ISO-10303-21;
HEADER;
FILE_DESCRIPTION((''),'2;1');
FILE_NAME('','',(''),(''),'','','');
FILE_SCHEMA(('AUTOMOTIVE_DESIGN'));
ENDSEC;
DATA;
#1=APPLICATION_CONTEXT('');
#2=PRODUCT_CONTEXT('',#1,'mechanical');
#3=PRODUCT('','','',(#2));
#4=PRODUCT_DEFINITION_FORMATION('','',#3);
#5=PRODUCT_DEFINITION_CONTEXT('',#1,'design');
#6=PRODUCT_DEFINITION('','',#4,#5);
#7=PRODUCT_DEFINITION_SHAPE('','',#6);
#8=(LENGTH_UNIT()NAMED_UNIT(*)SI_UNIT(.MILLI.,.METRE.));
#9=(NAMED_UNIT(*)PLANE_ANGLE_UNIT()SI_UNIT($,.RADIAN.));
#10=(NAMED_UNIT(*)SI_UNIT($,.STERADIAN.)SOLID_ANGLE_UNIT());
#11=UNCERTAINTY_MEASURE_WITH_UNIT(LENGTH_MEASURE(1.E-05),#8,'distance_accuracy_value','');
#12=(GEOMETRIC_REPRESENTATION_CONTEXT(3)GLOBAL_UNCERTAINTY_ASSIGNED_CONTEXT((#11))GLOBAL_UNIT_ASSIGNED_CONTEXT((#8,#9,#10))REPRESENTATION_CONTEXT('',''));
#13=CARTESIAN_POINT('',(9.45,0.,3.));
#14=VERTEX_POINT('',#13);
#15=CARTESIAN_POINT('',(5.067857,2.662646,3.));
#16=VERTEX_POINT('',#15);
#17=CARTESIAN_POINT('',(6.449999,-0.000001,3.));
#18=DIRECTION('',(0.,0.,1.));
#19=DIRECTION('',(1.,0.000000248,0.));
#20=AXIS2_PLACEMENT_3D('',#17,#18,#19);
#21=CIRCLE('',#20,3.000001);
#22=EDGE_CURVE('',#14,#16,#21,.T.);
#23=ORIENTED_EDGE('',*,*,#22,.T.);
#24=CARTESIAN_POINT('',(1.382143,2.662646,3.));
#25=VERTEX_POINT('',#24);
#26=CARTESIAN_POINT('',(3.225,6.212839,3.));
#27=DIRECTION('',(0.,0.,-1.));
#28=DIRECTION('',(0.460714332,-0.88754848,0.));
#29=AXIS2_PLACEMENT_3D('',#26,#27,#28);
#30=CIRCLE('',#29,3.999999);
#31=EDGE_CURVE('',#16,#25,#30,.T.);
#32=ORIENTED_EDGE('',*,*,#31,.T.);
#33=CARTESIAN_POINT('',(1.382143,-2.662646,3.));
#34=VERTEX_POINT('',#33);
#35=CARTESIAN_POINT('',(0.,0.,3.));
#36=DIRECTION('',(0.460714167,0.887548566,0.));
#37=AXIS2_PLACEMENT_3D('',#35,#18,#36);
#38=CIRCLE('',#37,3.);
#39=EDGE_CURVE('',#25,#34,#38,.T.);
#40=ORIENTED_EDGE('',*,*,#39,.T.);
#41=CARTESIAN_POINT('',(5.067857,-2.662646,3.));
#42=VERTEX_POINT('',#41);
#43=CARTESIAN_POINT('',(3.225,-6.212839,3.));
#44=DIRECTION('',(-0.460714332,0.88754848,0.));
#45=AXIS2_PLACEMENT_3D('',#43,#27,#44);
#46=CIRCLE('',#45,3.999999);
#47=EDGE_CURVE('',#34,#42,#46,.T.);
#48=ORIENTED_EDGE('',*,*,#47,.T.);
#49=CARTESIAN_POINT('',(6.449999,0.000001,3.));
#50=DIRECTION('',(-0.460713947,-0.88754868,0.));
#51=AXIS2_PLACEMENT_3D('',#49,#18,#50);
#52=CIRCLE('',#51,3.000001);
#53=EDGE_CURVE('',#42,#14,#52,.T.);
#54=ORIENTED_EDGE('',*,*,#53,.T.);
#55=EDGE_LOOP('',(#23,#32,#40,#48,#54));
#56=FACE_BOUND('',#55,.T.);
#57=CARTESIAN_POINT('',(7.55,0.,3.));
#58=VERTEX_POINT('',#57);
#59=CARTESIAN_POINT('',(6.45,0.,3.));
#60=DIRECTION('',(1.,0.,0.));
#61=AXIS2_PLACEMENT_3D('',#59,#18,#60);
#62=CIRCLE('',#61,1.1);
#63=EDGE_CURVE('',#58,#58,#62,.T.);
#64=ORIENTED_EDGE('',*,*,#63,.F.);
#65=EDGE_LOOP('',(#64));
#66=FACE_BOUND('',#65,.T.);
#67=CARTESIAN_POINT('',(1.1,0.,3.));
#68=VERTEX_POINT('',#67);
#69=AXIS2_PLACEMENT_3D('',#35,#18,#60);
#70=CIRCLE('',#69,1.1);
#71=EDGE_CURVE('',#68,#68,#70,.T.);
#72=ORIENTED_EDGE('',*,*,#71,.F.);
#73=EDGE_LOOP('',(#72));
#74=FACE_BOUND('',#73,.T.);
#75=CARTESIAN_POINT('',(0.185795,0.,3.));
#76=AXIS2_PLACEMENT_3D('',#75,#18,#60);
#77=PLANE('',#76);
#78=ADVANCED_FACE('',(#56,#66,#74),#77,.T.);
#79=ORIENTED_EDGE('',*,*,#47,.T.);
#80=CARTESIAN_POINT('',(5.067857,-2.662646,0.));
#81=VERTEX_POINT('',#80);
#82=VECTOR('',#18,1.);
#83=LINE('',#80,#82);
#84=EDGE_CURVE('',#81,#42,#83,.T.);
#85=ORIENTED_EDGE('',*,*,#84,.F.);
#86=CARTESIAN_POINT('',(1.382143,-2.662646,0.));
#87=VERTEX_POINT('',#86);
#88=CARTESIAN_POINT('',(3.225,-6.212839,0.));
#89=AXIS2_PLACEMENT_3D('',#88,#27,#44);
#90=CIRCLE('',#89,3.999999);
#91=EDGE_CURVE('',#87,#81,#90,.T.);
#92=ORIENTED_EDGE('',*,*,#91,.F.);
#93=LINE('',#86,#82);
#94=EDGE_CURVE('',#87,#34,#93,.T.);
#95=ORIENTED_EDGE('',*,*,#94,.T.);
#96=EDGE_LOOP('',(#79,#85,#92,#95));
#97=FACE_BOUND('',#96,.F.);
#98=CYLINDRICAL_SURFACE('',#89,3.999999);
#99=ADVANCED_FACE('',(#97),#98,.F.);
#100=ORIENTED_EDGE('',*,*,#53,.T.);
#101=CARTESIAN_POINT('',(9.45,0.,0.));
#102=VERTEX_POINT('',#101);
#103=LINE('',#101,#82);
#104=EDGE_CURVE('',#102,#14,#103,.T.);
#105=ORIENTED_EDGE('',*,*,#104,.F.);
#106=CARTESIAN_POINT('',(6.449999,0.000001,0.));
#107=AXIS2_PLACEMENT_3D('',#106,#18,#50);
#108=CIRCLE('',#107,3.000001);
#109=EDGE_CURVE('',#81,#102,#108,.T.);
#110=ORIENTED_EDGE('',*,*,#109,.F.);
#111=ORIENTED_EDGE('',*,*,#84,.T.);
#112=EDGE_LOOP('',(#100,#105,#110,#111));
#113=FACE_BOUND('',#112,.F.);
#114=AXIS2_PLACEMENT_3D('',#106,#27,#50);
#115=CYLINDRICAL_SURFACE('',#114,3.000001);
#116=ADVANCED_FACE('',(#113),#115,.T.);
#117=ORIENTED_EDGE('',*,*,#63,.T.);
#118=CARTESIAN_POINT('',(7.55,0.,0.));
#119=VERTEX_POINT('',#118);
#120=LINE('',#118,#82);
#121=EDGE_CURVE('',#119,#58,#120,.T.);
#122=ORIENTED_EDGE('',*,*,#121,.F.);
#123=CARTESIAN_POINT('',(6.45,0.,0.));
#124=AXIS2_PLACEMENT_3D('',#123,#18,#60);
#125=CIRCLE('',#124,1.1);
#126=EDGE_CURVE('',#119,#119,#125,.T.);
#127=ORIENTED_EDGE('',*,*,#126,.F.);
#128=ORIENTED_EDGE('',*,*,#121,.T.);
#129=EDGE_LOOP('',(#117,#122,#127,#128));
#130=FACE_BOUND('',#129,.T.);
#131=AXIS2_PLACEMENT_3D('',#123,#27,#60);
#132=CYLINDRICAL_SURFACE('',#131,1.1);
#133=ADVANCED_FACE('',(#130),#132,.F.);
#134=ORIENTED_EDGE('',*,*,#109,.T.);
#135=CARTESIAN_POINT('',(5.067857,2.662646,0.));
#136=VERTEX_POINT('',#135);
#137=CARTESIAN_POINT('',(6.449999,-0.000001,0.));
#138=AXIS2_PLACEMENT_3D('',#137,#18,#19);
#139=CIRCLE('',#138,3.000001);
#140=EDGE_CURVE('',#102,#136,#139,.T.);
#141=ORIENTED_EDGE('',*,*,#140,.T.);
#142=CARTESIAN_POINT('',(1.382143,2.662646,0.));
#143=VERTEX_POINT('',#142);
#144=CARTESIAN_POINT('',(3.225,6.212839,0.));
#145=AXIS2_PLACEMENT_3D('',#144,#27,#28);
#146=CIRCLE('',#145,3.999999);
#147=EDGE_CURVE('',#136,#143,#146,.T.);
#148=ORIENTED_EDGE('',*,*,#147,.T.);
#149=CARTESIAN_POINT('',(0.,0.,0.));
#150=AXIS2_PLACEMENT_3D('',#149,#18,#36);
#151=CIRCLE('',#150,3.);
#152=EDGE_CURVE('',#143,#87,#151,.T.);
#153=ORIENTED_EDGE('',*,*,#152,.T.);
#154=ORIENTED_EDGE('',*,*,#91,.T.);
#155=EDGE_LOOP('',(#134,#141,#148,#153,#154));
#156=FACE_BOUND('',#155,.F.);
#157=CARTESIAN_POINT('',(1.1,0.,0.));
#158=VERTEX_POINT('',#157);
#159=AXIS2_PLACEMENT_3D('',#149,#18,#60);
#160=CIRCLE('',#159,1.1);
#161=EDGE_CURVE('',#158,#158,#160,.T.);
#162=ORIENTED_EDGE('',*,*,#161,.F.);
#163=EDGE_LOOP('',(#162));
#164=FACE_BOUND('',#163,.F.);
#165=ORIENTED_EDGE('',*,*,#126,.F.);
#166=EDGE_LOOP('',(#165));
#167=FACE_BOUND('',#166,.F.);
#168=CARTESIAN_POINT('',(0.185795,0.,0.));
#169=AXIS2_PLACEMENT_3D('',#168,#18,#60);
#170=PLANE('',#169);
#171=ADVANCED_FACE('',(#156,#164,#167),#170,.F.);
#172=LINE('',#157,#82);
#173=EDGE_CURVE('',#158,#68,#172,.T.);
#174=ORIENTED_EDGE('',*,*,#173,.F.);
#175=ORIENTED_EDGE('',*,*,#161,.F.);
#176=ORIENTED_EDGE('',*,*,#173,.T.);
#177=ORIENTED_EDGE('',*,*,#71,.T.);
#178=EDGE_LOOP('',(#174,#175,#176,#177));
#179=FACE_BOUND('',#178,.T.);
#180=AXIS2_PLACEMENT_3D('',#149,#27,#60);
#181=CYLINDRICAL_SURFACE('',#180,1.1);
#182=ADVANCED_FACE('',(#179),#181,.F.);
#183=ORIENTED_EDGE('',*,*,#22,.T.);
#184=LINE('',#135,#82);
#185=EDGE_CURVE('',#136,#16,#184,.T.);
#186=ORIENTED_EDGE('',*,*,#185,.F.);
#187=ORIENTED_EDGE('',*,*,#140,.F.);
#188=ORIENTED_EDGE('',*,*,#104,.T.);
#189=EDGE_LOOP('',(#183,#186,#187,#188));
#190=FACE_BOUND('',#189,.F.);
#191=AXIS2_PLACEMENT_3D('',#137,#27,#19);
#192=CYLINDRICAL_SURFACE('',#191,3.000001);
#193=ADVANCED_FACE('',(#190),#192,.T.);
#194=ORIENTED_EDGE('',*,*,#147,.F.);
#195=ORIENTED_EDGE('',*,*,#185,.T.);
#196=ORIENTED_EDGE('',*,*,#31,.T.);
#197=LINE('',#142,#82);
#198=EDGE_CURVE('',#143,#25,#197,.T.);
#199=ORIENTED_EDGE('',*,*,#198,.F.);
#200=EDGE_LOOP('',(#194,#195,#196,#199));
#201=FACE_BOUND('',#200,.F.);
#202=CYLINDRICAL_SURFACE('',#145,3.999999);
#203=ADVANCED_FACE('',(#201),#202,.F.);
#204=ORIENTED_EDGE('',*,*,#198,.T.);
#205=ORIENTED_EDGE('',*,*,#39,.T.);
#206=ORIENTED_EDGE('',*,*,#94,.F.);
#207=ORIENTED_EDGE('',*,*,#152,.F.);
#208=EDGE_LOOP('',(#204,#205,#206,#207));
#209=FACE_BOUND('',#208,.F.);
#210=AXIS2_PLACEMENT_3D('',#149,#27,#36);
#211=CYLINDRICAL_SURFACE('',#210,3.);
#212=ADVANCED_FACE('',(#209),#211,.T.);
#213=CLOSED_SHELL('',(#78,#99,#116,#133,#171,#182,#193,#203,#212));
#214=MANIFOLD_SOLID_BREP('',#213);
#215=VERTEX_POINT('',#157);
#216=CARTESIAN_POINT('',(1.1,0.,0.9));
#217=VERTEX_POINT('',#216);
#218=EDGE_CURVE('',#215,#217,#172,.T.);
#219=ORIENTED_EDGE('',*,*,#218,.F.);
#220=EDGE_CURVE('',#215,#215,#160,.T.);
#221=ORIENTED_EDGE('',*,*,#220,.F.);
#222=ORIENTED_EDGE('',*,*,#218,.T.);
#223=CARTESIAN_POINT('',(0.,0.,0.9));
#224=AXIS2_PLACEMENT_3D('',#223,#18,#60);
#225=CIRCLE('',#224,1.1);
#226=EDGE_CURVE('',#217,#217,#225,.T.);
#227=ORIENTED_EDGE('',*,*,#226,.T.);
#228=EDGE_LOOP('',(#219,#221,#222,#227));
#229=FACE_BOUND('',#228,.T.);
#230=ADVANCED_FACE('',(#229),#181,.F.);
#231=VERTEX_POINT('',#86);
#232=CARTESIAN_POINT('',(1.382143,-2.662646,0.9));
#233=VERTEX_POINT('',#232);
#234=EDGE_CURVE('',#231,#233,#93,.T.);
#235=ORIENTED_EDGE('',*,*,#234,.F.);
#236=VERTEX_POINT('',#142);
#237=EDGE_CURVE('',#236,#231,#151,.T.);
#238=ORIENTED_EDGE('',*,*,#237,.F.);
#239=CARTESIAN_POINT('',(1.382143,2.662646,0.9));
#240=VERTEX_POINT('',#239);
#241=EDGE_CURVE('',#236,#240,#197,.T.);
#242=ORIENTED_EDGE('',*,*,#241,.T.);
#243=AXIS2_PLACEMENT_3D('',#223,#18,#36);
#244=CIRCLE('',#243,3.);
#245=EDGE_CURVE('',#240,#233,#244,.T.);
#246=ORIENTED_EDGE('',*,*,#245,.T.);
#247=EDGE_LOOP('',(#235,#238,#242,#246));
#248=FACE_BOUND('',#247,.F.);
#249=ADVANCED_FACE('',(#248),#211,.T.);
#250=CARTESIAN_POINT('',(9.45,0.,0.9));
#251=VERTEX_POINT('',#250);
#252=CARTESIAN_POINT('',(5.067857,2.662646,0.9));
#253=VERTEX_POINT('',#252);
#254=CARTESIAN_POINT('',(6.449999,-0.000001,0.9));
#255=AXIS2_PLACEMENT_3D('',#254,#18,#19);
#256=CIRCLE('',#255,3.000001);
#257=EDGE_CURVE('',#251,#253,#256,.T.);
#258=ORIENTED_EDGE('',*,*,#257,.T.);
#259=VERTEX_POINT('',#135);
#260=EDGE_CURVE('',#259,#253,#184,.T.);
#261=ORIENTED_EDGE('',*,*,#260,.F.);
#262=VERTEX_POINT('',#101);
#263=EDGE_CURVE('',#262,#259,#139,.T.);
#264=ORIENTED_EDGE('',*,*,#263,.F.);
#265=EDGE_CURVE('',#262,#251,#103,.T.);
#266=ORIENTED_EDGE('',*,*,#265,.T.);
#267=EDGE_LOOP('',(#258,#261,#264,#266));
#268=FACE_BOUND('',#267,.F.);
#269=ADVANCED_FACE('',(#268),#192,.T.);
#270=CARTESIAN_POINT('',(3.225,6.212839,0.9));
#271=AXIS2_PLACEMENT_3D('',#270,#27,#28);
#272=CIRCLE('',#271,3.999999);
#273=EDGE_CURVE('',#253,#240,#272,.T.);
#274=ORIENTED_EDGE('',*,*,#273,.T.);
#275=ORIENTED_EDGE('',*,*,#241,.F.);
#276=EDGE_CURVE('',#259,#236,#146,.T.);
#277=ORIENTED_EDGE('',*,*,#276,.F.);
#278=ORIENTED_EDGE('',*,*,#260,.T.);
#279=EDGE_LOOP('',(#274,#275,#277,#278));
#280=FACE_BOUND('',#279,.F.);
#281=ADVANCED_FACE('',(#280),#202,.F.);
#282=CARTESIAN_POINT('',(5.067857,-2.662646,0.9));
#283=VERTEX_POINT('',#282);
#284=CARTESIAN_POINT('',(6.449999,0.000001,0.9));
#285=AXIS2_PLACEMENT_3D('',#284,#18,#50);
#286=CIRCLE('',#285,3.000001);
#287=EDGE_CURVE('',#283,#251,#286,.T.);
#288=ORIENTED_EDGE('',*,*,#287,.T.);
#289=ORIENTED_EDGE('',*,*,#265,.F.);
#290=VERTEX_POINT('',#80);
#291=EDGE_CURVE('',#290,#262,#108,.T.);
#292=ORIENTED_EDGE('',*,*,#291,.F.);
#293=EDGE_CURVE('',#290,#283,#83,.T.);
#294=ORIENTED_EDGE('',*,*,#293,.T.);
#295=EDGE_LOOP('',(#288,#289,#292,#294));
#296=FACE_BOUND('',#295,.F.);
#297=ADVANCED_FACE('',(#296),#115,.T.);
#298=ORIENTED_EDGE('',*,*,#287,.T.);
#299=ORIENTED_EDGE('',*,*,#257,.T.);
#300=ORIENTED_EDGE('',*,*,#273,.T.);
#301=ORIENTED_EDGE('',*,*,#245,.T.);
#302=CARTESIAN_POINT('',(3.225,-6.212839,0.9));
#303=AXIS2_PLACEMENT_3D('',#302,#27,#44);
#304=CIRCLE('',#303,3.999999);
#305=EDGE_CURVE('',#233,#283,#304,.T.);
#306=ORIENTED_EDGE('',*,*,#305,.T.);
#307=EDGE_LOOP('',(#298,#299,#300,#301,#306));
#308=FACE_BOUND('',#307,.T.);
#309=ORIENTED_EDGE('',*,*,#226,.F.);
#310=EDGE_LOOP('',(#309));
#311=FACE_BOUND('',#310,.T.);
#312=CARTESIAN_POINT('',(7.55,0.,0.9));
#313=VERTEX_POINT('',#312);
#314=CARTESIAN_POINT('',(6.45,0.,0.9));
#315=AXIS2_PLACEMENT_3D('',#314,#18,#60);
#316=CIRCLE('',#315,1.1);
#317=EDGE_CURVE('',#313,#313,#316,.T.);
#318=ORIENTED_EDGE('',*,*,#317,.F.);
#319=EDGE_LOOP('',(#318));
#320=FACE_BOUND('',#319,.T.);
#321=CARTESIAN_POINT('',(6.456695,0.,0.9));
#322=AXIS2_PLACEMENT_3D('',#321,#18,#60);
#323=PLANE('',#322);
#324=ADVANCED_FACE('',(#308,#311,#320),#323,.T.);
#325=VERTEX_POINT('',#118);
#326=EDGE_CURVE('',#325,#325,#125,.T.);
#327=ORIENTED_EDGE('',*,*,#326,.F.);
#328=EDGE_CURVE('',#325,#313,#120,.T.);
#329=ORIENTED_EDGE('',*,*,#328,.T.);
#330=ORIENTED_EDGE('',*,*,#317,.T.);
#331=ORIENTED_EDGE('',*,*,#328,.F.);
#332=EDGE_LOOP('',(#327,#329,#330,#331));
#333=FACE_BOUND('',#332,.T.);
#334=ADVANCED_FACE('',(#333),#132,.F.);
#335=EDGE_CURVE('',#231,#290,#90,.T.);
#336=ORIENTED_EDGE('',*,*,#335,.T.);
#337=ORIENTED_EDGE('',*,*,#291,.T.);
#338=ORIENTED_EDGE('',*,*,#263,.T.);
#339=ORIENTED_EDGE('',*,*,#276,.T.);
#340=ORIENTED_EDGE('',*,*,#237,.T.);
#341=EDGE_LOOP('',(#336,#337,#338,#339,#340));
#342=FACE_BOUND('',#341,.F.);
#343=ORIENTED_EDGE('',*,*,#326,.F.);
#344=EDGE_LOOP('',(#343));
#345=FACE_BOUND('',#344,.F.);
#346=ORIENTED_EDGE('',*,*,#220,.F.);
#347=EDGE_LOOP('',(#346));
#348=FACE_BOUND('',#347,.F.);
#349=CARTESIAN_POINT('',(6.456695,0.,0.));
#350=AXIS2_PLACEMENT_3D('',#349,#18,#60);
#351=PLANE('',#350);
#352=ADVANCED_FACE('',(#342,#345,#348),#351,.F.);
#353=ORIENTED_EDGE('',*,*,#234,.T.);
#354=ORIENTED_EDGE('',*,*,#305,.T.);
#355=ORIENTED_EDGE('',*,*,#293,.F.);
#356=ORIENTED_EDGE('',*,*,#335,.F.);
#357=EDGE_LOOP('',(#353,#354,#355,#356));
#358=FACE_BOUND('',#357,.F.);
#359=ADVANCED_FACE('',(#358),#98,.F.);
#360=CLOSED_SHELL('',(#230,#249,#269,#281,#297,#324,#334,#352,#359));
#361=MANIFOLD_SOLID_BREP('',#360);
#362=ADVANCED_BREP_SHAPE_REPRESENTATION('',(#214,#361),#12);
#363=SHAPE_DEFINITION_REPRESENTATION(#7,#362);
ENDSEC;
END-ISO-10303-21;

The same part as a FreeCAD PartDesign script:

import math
import FreeCAD as App
import Part
import Sketcher

V = App.Vector
Q = App.Units.Quantity

doc = App.newDocument("Part")
body = doc.addObject("PartDesign::Body", "Body")

# Sketch on XY plane
sketch1 = body.newObject("Sketcher::SketchObject", "Sketch")
sketch1.AttachmentSupport = (doc.getObject("XY_Plane"), [""])
sketch1.MapMode = "FlatFace"
sketch1.addGeometry(Part.ArcOfCircle(Part.Circle(V(6.449999, 0.000001, 0), V(0, 0, 1), 3.000001), math.radians(-117.433187), math.radians(-0.000014)), False)
sketch1.addGeometry(Part.ArcOfCircle(Part.Circle(V(6.449999, -0.000001, 0), V(0, 0, 1), 3.000001), math.radians(0.000014), math.radians(117.433187)), False)
sketch1.addGeometry(Part.ArcOfCircle(Part.Circle(V(3.225, 6.212839, 0), V(0, 0, 1), 3.999999), math.radians(-117.433212), math.radians(-62.566788)), False)
sketch1.addGeometry(Part.ArcOfCircle(Part.Circle(V(0, 0, 0), V(0, 0, 1), 3), math.radians(62.566799), math.radians(297.433201)), False)
sketch1.addGeometry(Part.ArcOfCircle(Part.Circle(V(3.225, -6.212839, 0), V(0, 0, 1), 3.999999), math.radians(62.566788), math.radians(117.433212)), False)
sketch1.addGeometry(Part.Circle(V(6.45, 0, 0), V(0, 0, 1), 1.1), False)
sketch1.addGeometry(Part.Circle(V(0, 0, 0), V(0, 0, 1), 1.1), False)
sketch1.addConstraint(Sketcher.Constraint("Tangent", 0, 2, 1, 1))
sketch1.addConstraint(Sketcher.Constraint("Tangent", 1, 2, 2, 2))
sketch1.addConstraint(Sketcher.Constraint("Tangent", 2, 1, 3, 1))
sketch1.addConstraint(Sketcher.Constraint("Tangent", 3, 2, 4, 2))
sketch1.addConstraint(Sketcher.Constraint("Tangent", 4, 1, 0, 1))
sketch1.addConstraint(Sketcher.Constraint("Coincident", 3, 3, -1, 1))
sketch1.addConstraint(Sketcher.Constraint("Coincident", 6, 3, -1, 1))
sketch1.addConstraint(Sketcher.Constraint("Coincident", 5, 3, 0, 3))
sketch1.addConstraint(Sketcher.Constraint("Equal", 0, 1))
sketch1.addConstraint(Sketcher.Constraint("Equal", 1, 3))
sketch1.addConstraint(Sketcher.Constraint("Equal", 2, 4))
sketch1.addConstraint(Sketcher.Constraint("Equal", 5, 6))
sketch1.addConstraint(Sketcher.Constraint("PointOnObject", 0, 3, -1))
sketch1.addConstraint(Sketcher.Constraint("PointOnObject", 0, 2, -1))
sketch1.addConstraint(Sketcher.Constraint("Radius", 0, Q("3.000001 mm")))
sketch1.addConstraint(Sketcher.Constraint("Radius", 2, Q("3.999999 mm")))
sketch1.addConstraint(Sketcher.Constraint("Diameter", 5, Q("2.2 mm")))
sketch1.addConstraint(Sketcher.Constraint("DistanceX", -1, 1, 0, 3, Q("6.449999 mm")))
pad1 = body.newObject("PartDesign::Pad", "Pad")
pad1.Profile = sketch1
pad1.Length = 0.9
body2 = doc.addObject("PartDesign::Body", "Body001")

# Sketch on XY plane
sketch2 = body2.newObject("Sketcher::SketchObject", "Sketch001")
sketch2.AttachmentSupport = (doc.getObject("XY_Plane001"), [""])
sketch2.MapMode = "FlatFace"
sketch2.addGeometry(Part.ArcOfCircle(Part.Circle(V(0, 0, 0), V(0, 0, 1), 3), math.radians(62.566799), math.radians(297.433201)), False)
sketch2.addGeometry(Part.ArcOfCircle(Part.Circle(V(3.225, -6.212839, 0), V(0, 0, 1), 3.999999), math.radians(62.566788), math.radians(117.433212)), False)
sketch2.addGeometry(Part.ArcOfCircle(Part.Circle(V(6.449999, 0.000001, 0), V(0, 0, 1), 3.000001), math.radians(-117.433187), math.radians(-0.000014)), False)
sketch2.addGeometry(Part.ArcOfCircle(Part.Circle(V(6.449999, -0.000001, 0), V(0, 0, 1), 3.000001), math.radians(0.000014), math.radians(117.433187)), False)
sketch2.addGeometry(Part.ArcOfCircle(Part.Circle(V(3.225, 6.212839, 0), V(0, 0, 1), 3.999999), math.radians(-117.433212), math.radians(-62.566788)), False)
sketch2.addGeometry(Part.Circle(V(0, 0, 0), V(0, 0, 1), 1.1), False)
sketch2.addGeometry(Part.Circle(V(6.45, 0, 0), V(0, 0, 1), 1.1), False)
sketch2.addConstraint(Sketcher.Constraint("Tangent", 0, 2, 1, 2))
sketch2.addConstraint(Sketcher.Constraint("Tangent", 1, 1, 2, 1))
sketch2.addConstraint(Sketcher.Constraint("Tangent", 2, 2, 3, 1))
sketch2.addConstraint(Sketcher.Constraint("Tangent", 3, 2, 4, 2))
sketch2.addConstraint(Sketcher.Constraint("Tangent", 4, 1, 0, 1))
sketch2.addConstraint(Sketcher.Constraint("Coincident", 0, 3, -1, 1))
sketch2.addConstraint(Sketcher.Constraint("Coincident", 5, 3, -1, 1))
sketch2.addConstraint(Sketcher.Constraint("Coincident", 6, 3, 2, 3))
sketch2.addConstraint(Sketcher.Constraint("Equal", 0, 2))
sketch2.addConstraint(Sketcher.Constraint("Equal", 2, 3))
sketch2.addConstraint(Sketcher.Constraint("Equal", 1, 4))
sketch2.addConstraint(Sketcher.Constraint("Equal", 5, 6))
sketch2.addConstraint(Sketcher.Constraint("PointOnObject", 2, 3, -1))
sketch2.addConstraint(Sketcher.Constraint("PointOnObject", 2, 2, -1))
sketch2.addConstraint(Sketcher.Constraint("Radius", 0, Q("3 mm")))
sketch2.addConstraint(Sketcher.Constraint("Radius", 1, Q("3.999999 mm")))
sketch2.addConstraint(Sketcher.Constraint("Diameter", 5, Q("2.2 mm")))
sketch2.addConstraint(Sketcher.Constraint("DistanceX", -1, 1, 2, 3, Q("6.449999 mm")))
pad2 = body2.newObject("PartDesign::Pad", "Pad001")
pad2.Profile = sketch2
pad2.Length = 3

doc.recompute()
